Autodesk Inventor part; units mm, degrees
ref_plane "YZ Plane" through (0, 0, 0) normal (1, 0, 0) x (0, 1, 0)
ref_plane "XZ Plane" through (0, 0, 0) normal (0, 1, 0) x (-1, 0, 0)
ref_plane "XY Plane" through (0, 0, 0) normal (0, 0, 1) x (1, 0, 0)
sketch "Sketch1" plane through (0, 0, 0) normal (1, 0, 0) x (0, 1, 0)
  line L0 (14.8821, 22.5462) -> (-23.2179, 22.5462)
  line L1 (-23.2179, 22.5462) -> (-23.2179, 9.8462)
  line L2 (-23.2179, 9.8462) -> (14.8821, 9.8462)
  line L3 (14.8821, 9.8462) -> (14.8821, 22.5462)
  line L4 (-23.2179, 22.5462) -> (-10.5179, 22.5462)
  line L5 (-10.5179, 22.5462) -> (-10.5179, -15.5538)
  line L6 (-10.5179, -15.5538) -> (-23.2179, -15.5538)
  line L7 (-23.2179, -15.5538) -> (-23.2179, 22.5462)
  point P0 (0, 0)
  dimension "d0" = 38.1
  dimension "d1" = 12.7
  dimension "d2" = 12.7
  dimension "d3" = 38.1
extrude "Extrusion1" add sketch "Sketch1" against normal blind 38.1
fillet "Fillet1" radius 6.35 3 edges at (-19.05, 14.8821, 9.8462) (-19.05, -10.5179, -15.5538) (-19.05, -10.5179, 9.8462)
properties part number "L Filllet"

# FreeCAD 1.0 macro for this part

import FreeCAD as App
import Part
import Sketcher
from FreeCAD import Vector
Q = App.Units.Quantity


def edges_at(feature, points):
    """Names of the edges that pass closest to the given points."""
    edges = feature.Shape.Edges
    near = lambda p: min(range(len(edges)), key=lambda i: edges[i].distToShape(Part.Vertex(*p))[0])
    return sorted({f"Edge{near(p) + 1}" for p in points})


def add_polygon(sketch, points):
    """Adds a closed chain of lines whose ends are joined by coincident constraints."""
    first, n = sketch.GeometryCount, len(points)
    for a, b in zip(points, points[1:] + points[:1]):
        sketch.addGeometry(Part.LineSegment(App.Vector(*a, 0), App.Vector(*b, 0)), False)
    for i in range(n):
        sketch.addConstraint(Sketcher.Constraint("Coincident", first + i, 2, first + (i + 1) % n, 1))

doc = App.newDocument("Part")
body = doc.addObject("PartDesign::Body", "Body")

# Sketch on YZ plane
sketch1 = body.newObject("Sketcher::SketchObject", "Sketch")
sketch1.AttachmentSupport = (doc.getObject("YZ_Plane"), [""])
sketch1.MapMode = "FlatFace"
add_polygon(sketch1, [(15, 10), (15, 23), (-23, 23), (-23, -16), (-11, -16), (-11, 10)])  # lines 0-5
sketch1.addConstraint([
    Sketcher.Constraint("Vertical", 0),
    Sketcher.Constraint("Horizontal", 1),
    Sketcher.Constraint("Vertical", 2),
    Sketcher.Constraint("Horizontal", 3),
    Sketcher.Constraint("Vertical", 4),
    Sketcher.Constraint("Horizontal", 5),
    Sketcher.Constraint("Equal", 3, 0),
    Sketcher.Constraint("Equal", 1, 2),
    Sketcher.Constraint("DistanceX", 1, 2, 1, 1, Q("1.5 in")),
    Sketcher.Constraint("DistanceX", 3, 1, 3, 2, Q("0.5 in")),
    Sketcher.Constraint("DistanceX", -1, 1, 0, 2, Q("0.5859 in")),
    Sketcher.Constraint("DistanceY", -1, 1, 0, 2, Q("22.5462 mm")),
])
pad1 = body.newObject("PartDesign::Pad", "Pad")
pad1.Profile = sketch1
pad1.Length = Q("1.5 in")
pad1.Reversed = True
doc.recompute()

fillet = body.newObject("PartDesign::Fillet", "Fillet")
fillet.Base = (pad1, edges_at(pad1, [(-19.05, 14.882, 9.846), (-19.05, -10.518, -15.554), (-19.05, -10.518, 9.846)]))
fillet.Radius = Q("0.25 in")

doc.recompute()
